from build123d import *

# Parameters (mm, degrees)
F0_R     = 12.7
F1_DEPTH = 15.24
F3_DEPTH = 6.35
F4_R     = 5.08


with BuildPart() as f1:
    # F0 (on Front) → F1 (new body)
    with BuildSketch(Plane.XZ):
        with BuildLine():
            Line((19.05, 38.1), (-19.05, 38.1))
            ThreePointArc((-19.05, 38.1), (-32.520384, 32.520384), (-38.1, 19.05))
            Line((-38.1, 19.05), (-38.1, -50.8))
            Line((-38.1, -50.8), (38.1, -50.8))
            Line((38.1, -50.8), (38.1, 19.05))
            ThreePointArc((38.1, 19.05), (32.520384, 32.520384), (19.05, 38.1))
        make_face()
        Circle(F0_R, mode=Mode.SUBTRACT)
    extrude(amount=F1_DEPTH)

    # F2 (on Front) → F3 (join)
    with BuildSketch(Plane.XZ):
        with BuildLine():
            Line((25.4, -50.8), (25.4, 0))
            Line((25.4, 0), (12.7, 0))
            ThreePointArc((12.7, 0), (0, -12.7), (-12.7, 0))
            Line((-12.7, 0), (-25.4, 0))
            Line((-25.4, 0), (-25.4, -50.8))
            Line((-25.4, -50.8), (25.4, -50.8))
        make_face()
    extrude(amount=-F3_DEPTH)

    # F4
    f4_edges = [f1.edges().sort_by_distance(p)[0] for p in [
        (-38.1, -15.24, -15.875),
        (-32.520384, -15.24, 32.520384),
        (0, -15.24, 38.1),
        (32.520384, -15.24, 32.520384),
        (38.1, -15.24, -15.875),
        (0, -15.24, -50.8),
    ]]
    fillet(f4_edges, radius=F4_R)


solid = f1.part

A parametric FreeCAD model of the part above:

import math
import FreeCAD as App
import Part
import Sketcher

V = App.Vector
Q = App.Units.Quantity


def edges_at(feature, points):
    """Names of the edges that pass closest to the given points."""
    edges = feature.Shape.Edges
    near = lambda p: min(range(len(edges)), key=lambda i: edges[i].distToShape(Part.Vertex(*p))[0])
    return sorted({f"Edge{near(p) + 1}" for p in points})

doc = App.newDocument("Part")
params = doc.addObject("Spreadsheet::Sheet", "Params")
for row, (alias, value) in enumerate([
    ("sketch1_diameter", "1 in"),
    ("sketch1_width", "3 in"),
    ("sketch1_radius", "0.75 in"),
    ("sketch1_height", "2.75 in"),
    ("pad1_length", "0.6 in"),
    ("sketch2_radius", "0.5 in"),
    ("sketch2_width", "2 in"),
    ("pad2_length", "0.25 in"),
    ("fillet_radius", "0.2 in"),
], start=1):
    params.set(f"A{row}", alias)
    params.set(f"B{row}", "=" + value)
    params.setAlias(f"B{row}", alias)

body = doc.addObject("PartDesign::Body", "Body")

# Sketch on XZ plane
sketch1 = body.newObject("Sketcher::SketchObject", "Sketch")
sketch1.AttachmentSupport = (doc.getObject("XZ_Plane"), [""])
sketch1.MapMode = "FlatFace"
sketch1.addGeometry([
    Part.LineSegment(V(19, 38, 0), V(-19, 38, 0)),  # 0
    Part.ArcOfCircle(Part.Circle(V(-19, 19, 0), V(0, 0, 1), 19), math.radians(90), math.radians(180)),  # 1
    Part.LineSegment(V(-38, 19, 0), V(-38, -51, 0)),  # 2
    Part.LineSegment(V(-38, -51, 0), V(38, -51, 0)),  # 3
    Part.LineSegment(V(38, -51, 0), V(38, 19, 0)),  # 4
    Part.ArcOfCircle(Part.Circle(V(19, 19, 0), V(0, 0, 1), 19), math.radians(0), math.radians(90)),  # 5
    Part.Circle(V(0, 0, 0), V(0, 0, 1), 13),  # 6
], False)
sketch1.addConstraint([
    Sketcher.Constraint("Tangent", 0, 2, 1, 1),
    Sketcher.Constraint("Tangent", 1, 2, 2, 1),
    Sketcher.Constraint("Coincident", 2, 2, 3, 1),
    Sketcher.Constraint("Coincident", 3, 2, 4, 1),
    Sketcher.Constraint("Tangent", 4, 2, 5, 1),
    Sketcher.Constraint("Tangent", 5, 2, 0, 1),
    Sketcher.Constraint("Horizontal", 0),
    Sketcher.Constraint("Vertical", 2),
    Sketcher.Constraint("Horizontal", 3),
    Sketcher.Constraint("Vertical", 4),
    Sketcher.Constraint("Coincident", 6, 3, -1, 1),
    Sketcher.Constraint("Equal", 1, 5),
    Sketcher.Constraint("Diameter", 6, Q("1 in")),
    Sketcher.Constraint("DistanceX", 3, 1, 3, 2, Q("3 in")),
    Sketcher.Constraint("Radius", 1, Q("0.75 in")),
    Sketcher.Constraint("DistanceY", 2, 2, -1, 1, Q("2 in")),
    Sketcher.Constraint("DistanceY", 2, 2, 2, 1, Q("2.75 in")),
    Sketcher.Constraint("DistanceX", 1, 2, -1, 1, Q("1.5 in")),
])
sketch1.setExpression("Constraints[12]", "Params.sketch1_diameter")
sketch1.setExpression("Constraints[13]", "Params.sketch1_width")
sketch1.setExpression("Constraints[14]", "Params.sketch1_radius")
sketch1.setExpression("Constraints[16]", "Params.sketch1_height")
pad1 = body.newObject("PartDesign::Pad", "Pad")
pad1.Profile = sketch1
pad1.setExpression("Length", "Params.pad1_length")

# Sketch on XZ plane
sketch2 = body.newObject("Sketcher::SketchObject", "Sketch001")
sketch2.AttachmentSupport = (doc.getObject("XZ_Plane"), [""])
sketch2.MapMode = "FlatFace"
sketch2.addGeometry([
    Part.LineSegment(V(25, -51, 0), V(25, 0, 0)),  # 0
    Part.LineSegment(V(25, 0, 0), V(13, 0, 0)),  # 1
    Part.ArcOfCircle(Part.Circle(V(0, 0, 0), V(0, 0, 1), 13), math.radians(180), math.radians(360)),  # 2
    Part.LineSegment(V(-13, 0, 0), V(-25, 0, 0)),  # 3
    Part.LineSegment(V(-25, 0, 0), V(-25, -51, 0)),  # 4
    Part.LineSegment(V(-25, -51, 0), V(25, -51, 0)),  # 5
], False)
sketch2.addConstraint([
    Sketcher.Constraint("Coincident", 0, 2, 1, 1),
    Sketcher.Constraint("Coincident", 1, 2, 2, 2),
    Sketcher.Constraint("Coincident", 2, 1, 3, 1),
    Sketcher.Constraint("Coincident", 3, 2, 4, 1),
    Sketcher.Constraint("Coincident", 4, 2, 5, 1),
    Sketcher.Constraint("Coincident", 5, 2, 0, 1),
    Sketcher.Constraint("Vertical", 0),
    Sketcher.Constraint("Horizontal", 1),
    Sketcher.Constraint("Horizontal", 3),
    Sketcher.Constraint("Vertical", 4),
    Sketcher.Constraint("Horizontal", 5),
    Sketcher.Constraint("Coincident", 2, 3, -1, 1),
    Sketcher.Constraint("Symmetric", 0, 2, 3, 2, -1, 1),
    Sketcher.Constraint("PointOnObject", 0, 2, -1),
    Sketcher.Constraint("Equal", 5, 0),
    Sketcher.Constraint("Radius", 2, Q("0.5 in")),
    Sketcher.Constraint("DistanceX", 5, 1, 5, 2, Q("2 in")),
])
sketch2.setExpression("Constraints[15]", "Params.sketch2_radius")
sketch2.setExpression("Constraints[16]", "Params.sketch2_width")
pad2 = body.newObject("PartDesign::Pad", "Pad001")
pad2.Profile = sketch2
pad2.setExpression("Length", "Params.pad2_length")
pad2.Reversed = True
doc.recompute()

fillet = body.newObject("PartDesign::Fillet", "Fillet")
fillet.Base = (pad2, edges_at(pad2, [
    (-38.1, -15.24, -15.875),
    (-32.52, -15.24, 32.52),
    (0, -15.24, 38.1),
    (32.52, -15.24, 32.52),
    (38.1, -15.24, -15.875),
    (0, -15.24, -50.8),
]))
fillet.setExpression("Radius", "Params.fillet_radius")

doc.recompute()
